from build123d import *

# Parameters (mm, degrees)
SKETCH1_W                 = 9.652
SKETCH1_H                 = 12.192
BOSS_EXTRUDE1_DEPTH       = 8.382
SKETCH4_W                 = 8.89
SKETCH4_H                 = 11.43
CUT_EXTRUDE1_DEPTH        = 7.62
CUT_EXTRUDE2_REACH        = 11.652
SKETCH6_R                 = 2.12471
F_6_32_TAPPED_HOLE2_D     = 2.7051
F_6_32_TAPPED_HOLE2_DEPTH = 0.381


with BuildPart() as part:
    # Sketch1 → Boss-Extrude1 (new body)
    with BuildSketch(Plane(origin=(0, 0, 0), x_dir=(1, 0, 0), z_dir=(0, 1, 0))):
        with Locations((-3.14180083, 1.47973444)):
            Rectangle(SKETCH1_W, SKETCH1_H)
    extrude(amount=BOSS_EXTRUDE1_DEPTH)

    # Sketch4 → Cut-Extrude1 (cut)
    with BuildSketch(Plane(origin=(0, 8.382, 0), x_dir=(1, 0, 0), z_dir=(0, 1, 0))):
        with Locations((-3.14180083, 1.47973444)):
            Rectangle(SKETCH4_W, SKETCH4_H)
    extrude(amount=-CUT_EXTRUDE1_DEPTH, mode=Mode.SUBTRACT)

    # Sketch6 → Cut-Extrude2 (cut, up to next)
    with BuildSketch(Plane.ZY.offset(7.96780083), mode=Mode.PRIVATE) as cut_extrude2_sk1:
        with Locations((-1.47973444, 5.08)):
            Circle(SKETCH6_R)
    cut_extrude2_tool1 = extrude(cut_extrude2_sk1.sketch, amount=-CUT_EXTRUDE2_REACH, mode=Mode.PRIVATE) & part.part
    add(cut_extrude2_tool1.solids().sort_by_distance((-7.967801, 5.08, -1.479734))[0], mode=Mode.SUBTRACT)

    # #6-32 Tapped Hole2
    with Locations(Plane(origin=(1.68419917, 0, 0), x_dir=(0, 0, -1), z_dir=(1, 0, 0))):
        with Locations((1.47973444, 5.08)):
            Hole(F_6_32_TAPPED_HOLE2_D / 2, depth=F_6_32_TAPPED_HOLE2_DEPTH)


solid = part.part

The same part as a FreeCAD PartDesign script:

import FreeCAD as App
import Part
import Sketcher

V = App.Vector
Q = App.Units.Quantity

doc = App.newDocument("Part")
body = doc.addObject("PartDesign::Body", "Body")

# Sketch on XZ plane
sketch1 = body.newObject("Sketcher::SketchObject", "Sketch")
sketch1.AttachmentSupport = (doc.getObject("XZ_Plane"), [""])
sketch1.MapMode = "FlatFace"
sketch1.addGeometry([
    Part.LineSegment(V(-8, -8, 0), V(-8, 5, 0)),
    Part.LineSegment(V(-8, 5, 0), V(2, 5, 0)),
    Part.LineSegment(V(2, 5, 0), V(2, -8, 0)),
    Part.LineSegment(V(2, -8, 0), V(-8, -8, 0)),
], False)
sketch1.addConstraint([
    Sketcher.Constraint("Coincident", 0, 2, 1, 1),
    Sketcher.Constraint("Coincident", 1, 2, 2, 1),
    Sketcher.Constraint("Coincident", 2, 2, 3, 1),
    Sketcher.Constraint("Coincident", 3, 2, 0, 1),
    Sketcher.Constraint("Vertical", 0),
    Sketcher.Constraint("Horizontal", 1),
    Sketcher.Constraint("Vertical", 2),
    Sketcher.Constraint("Horizontal", 3),
    Sketcher.Constraint("DistanceX", 1, 1, 1, 2, Q("0.38 in")),
    Sketcher.Constraint("DistanceY", 0, 1, 0, 2, Q("0.48 in")),
    Sketcher.Constraint("DistanceX", 0, 2, -1, 1, 7.967801),
    Sketcher.Constraint("DistanceY", -1, 1, 0, 2, 4.616266),
])
pad1 = body.newObject("PartDesign::Pad", "Pad")
pad1.Profile = sketch1
pad1.Length = Q("0.33 in")
pad1.Reversed = True

# Sketch on XZ plane
sketch2 = body.newObject("Sketcher::SketchObject", "Sketch001")
sketch2.AttachmentSupport = (doc.getObject("XZ_Plane"), [""])
sketch2.MapMode = "FlatFace"
sketch2.AttachmentOffset = App.Placement(V(0, 0, -0.33 * 25.4), App.Rotation())
sketch2.addGeometry([
    Part.LineSegment(V(-8, -7, 0), V(-8, 4, 0)),
    Part.LineSegment(V(-8, 4, 0), V(1, 4, 0)),
    Part.LineSegment(V(1, 4, 0), V(1, -7, 0)),
    Part.LineSegment(V(1, -7, 0), V(-8, -7, 0)),
], False)
sketch2.addConstraint([
    Sketcher.Constraint("Coincident", 0, 2, 1, 1),
    Sketcher.Constraint("Coincident", 1, 2, 2, 1),
    Sketcher.Constraint("Coincident", 2, 2, 3, 1),
    Sketcher.Constraint("Coincident", 3, 2, 0, 1),
    Sketcher.Constraint("Vertical", 0),
    Sketcher.Constraint("Horizontal", 1),
    Sketcher.Constraint("Vertical", 2),
    Sketcher.Constraint("Horizontal", 3),
    Sketcher.Constraint("DistanceX", 1, 1, 1, 2, Q("0.35 in")),
    Sketcher.Constraint("DistanceY", 0, 1, 0, 2, Q("0.45 in")),
    Sketcher.Constraint("DistanceX", 0, 2, -1, 1, 7.586801),
    Sketcher.Constraint("DistanceY", -1, 1, 0, 2, 4.235266),
])
pocket1 = body.newObject("PartDesign::Pocket", "Pocket")
pocket1.Profile = sketch2
pocket1.Length = Q("0.3 in")
pocket1.Reversed = True

# Sketch on YZ plane
sketch3 = body.newObject("Sketcher::SketchObject", "Sketch002")
sketch3.AttachmentSupport = (doc.getObject("YZ_Plane"), [""])
sketch3.MapMode = "FlatFace"
sketch3.AttachmentOffset = App.Placement(V(0, 0, -7.967801), App.Rotation())
sketch3.addGeometry(Part.Circle(V(5.1, -1.5, 0), V(0, 0, 1), 2.1), False)
sketch3.addConstraint([
    Sketcher.Constraint("Diameter", 0, Q("0.1673 in")),
    Sketcher.Constraint("DistanceX", -1, 1, 0, 3, Q("0.2 in")),
    Sketcher.Constraint("DistanceY", 0, 3, -1, 1, 1.479734),
])
pocket2 = body.newObject("PartDesign::Pocket", "Pocket001")
pocket2.Profile = sketch3
pocket2.Type = "UpToFirst"
pocket2.Reversed = True

# Sketch on YZ plane
sketch4 = body.newObject("Sketcher::SketchObject", "Sketch003")
sketch4.AttachmentSupport = (doc.getObject("YZ_Plane"), [""])
sketch4.MapMode = "FlatFace"
sketch4.AttachmentOffset = App.Placement(V(0, 0, 1.684199), App.Rotation())
sketch4.addGeometry(Part.Circle(V(5.1, -1.5, 0), V(0, 0, 1), 1.4), False)
sketch4.addConstraint([
    Sketcher.Constraint("Diameter", 0, Q("0.1065 in")),
    Sketcher.Constraint("DistanceX", -1, 1, 0, 3, Q("0.2 in")),
    Sketcher.Constraint("DistanceY", 0, 3, -1, 1, 1.479734),
])
doc.recompute()
hole = body.newObject("PartDesign::Hole", "Hole")
hole.Profile = sketch4
hole.ThreadType = "None"
hole.Diameter = Q("0.1065 in")
hole.DepthType = "Dimension"
hole.Depth = Q("0.015 in")
hole.DrillPoint = "Flat"

doc.recompute()
